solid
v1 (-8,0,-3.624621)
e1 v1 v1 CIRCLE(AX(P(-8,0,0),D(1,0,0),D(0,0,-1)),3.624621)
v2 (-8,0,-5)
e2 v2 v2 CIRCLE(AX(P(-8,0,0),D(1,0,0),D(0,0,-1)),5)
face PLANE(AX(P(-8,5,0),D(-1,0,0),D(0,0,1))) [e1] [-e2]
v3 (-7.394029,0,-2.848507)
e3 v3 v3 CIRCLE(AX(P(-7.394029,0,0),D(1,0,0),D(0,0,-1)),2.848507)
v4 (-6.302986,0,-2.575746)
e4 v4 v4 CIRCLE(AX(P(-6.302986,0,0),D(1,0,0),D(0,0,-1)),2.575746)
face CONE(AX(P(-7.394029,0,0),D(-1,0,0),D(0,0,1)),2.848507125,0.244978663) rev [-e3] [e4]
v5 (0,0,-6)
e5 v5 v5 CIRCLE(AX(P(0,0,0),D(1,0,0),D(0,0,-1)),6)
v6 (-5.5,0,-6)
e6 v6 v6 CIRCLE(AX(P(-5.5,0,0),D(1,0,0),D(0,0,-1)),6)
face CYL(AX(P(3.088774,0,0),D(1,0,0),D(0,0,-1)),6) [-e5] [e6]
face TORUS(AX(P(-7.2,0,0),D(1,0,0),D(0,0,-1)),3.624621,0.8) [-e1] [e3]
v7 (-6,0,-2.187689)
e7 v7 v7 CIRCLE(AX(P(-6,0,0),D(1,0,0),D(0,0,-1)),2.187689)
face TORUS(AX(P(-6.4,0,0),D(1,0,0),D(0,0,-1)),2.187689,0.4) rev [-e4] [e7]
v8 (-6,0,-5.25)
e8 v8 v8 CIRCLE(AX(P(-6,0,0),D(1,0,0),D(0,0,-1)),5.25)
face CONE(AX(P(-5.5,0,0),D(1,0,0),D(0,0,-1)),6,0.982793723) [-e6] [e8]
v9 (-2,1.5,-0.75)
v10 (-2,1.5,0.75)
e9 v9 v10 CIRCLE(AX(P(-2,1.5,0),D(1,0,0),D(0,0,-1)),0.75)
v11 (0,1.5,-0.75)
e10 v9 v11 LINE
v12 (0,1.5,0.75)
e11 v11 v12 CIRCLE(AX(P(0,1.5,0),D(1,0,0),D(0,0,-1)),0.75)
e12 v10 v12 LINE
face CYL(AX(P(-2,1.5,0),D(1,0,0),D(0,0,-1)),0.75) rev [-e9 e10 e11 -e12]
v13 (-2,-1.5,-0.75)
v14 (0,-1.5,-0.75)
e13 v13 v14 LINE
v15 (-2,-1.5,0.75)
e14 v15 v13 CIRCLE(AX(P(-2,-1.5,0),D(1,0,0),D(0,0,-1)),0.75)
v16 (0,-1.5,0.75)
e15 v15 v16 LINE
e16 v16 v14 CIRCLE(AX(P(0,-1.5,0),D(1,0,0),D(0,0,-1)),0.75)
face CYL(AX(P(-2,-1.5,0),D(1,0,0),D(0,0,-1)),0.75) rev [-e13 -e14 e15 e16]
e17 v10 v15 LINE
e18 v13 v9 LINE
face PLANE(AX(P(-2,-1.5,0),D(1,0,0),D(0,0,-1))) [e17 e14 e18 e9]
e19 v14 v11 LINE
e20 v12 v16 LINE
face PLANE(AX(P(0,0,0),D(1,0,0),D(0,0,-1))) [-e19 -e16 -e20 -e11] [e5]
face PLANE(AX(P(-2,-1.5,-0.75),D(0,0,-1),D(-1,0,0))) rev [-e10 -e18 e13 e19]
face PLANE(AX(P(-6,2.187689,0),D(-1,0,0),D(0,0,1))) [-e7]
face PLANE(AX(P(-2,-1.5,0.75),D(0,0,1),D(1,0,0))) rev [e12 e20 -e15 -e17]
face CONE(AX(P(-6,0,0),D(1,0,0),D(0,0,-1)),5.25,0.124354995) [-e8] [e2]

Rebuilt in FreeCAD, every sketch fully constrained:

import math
import FreeCAD as App
import Part
import Sketcher
Q = App.Units.Quantity

doc = App.newDocument("Part")
params = doc.addObject("Spreadsheet::Sheet", "Params")
for row, (alias, value) in enumerate([
    ("sketch1_radius", "0.8 mm"),
    ("sketch1_radius2", "0.4 mm"),
    ("sketch1_width", "6 mm"),
    ("sketch1_width2", "5.5 mm"),
    ("revolution_angle", "360 deg"),
    ("sketch2_width", "3 mm"),
    ("sketch2_radius", "0.75 mm"),
    ("pocket1_length", "2 mm"),
], start=1):
    params.set(f"A{row}", alias)
    params.set(f"B{row}", "=" + value)
    params.setAlias(f"B{row}", alias)

body = doc.addObject("PartDesign::Body", "Body")

# Sketch on XY plane
sketch1 = doc.addObject("Sketcher::SketchObject", "Sketch")
body.addObject(sketch1)
sketch1.AttachmentSupport = (doc.XY_Plane, [""])
sketch1.MapMode = "FlatFace"
sketch1.addGeometry(Part.LineSegment(App.Vector(0, 0, 0), App.Vector(0, 6, 0)), False)
sketch1.addGeometry(Part.LineSegment(App.Vector(0, 6, 0), App.Vector(-5.5, 6, 0)), False)
sketch1.addGeometry(Part.LineSegment(App.Vector(-5.5, 6, 0), App.Vector(-6, 5.25, 0)), False)
sketch1.addGeometry(Part.LineSegment(App.Vector(-6, 5.25, 0), App.Vector(-8, 5, 0)), False)
sketch1.addGeometry(Part.LineSegment(App.Vector(-8, 5, 0), App.Vector(-8, 3.62, 0)), False)
sketch1.addGeometry(Part.ArcOfCircle(Part.Circle(App.Vector(-7.2, 3.62, 0), App.Vector(0, 0, 1), 0.8), math.radians(-180), math.radians(-104)), False)
sketch1.addGeometry(Part.LineSegment(App.Vector(-7.39, 2.85, 0), App.Vector(-6.3, 2.58, 0)), False)
sketch1.addGeometry(Part.ArcOfCircle(Part.Circle(App.Vector(-6.4, 2.19, 0), App.Vector(0, 0, 1), 0.4), math.radians(0), math.radians(76)), False)
sketch1.addGeometry(Part.LineSegment(App.Vector(-6, 2.19, 0), App.Vector(-6, 0, 0)), False)
sketch1.addGeometry(Part.LineSegment(App.Vector(-6, 0, 0), App.Vector(0, 0, 0)), False)
sketch1.addConstraint(Sketcher.Constraint("Coincident", 0, 2, 1, 1))
sketch1.addConstraint(Sketcher.Constraint("Coincident", 1, 2, 2, 1))
sketch1.addConstraint(Sketcher.Constraint("Coincident", 2, 2, 3, 1))
sketch1.addConstraint(Sketcher.Constraint("Coincident", 3, 2, 4, 1))
sketch1.addConstraint(Sketcher.Constraint("Tangent", 4, 2, 5, 1))
sketch1.addConstraint(Sketcher.Constraint("Tangent", 5, 2, 6, 1))
sketch1.addConstraint(Sketcher.Constraint("Tangent", 6, 2, 7, 2))
sketch1.addConstraint(Sketcher.Constraint("Tangent", 7, 1, 8, 1))
sketch1.addConstraint(Sketcher.Constraint("Coincident", 8, 2, 9, 1))
sketch1.addConstraint(Sketcher.Constraint("Coincident", 9, 2, 0, 1))
sketch1.addConstraint(Sketcher.Constraint("Vertical", 0))
sketch1.addConstraint(Sketcher.Constraint("Horizontal", 1))
sketch1.addConstraint(Sketcher.Constraint("Vertical", 4))
sketch1.addConstraint(Sketcher.Constraint("Vertical", 8))
sketch1.addConstraint(Sketcher.Constraint("Horizontal", 9))
sketch1.addConstraint(Sketcher.Constraint("Coincident", 9, 2, -1, 1))
sketch1.addConstraint(Sketcher.Constraint("Vertical", 2, 2, 7, 1))
sketch1.addConstraint(Sketcher.Constraint("Equal", 9, 0))
sketch1.addConstraint(Sketcher.Constraint("Radius", 5, Q("0.8 mm")))
sketch1.addConstraint(Sketcher.Constraint("Radius", 7, Q("0.4 mm")))
sketch1.addConstraint(Sketcher.Constraint("DistanceX", 9, 1, 9, 2, Q("6 mm")))
sketch1.addConstraint(Sketcher.Constraint("DistanceX", 1, 2, 1, 1, Q("5.5 mm")))
sketch1.addConstraint(Sketcher.Constraint("DistanceX", 3, 2, -1, 1, Q("8 mm")))
sketch1.addConstraint(Sketcher.Constraint("DistanceY", -1, 1, 3, 2, Q("5 mm")))
sketch1.addConstraint(Sketcher.Constraint("DistanceY", -1, 1, 2, 2, Q("5.25 mm")))
sketch1.addConstraint(Sketcher.Constraint("DistanceY", 4, 2, 4, 1, Q("1.375379 mm")))
sketch1.addConstraint(Sketcher.Constraint("DistanceY", 8, 2, 8, 1, Q("2.187689 mm")))
sketch1.setExpression("Constraints[18]", "Params.sketch1_radius")
sketch1.setExpression("Constraints[19]", "Params.sketch1_radius2")
sketch1.setExpression("Constraints[20]", "Params.sketch1_width")
sketch1.setExpression("Constraints[21]", "Params.sketch1_width2")
revolution = doc.addObject("PartDesign::Revolution", "Revolution")
body.addObject(revolution)
revolution.Profile = sketch1
revolution.ReferenceAxis = (sketch1, ["H_Axis"])
revolution.setExpression("Angle", "Params.revolution_angle")

# Sketch on YZ plane
sketch2 = doc.addObject("Sketcher::SketchObject", "Sketch001")
body.addObject(sketch2)
sketch2.AttachmentSupport = (doc.YZ_Plane, [""])
sketch2.MapMode = "FlatFace"
sketch2.addGeometry(Part.LineSegment(App.Vector(1.5, 0.8, 0), App.Vector(-1.5, 0.8, 0)), False)
sketch2.addGeometry(Part.ArcOfCircle(Part.Circle(App.Vector(-1.5, 0, 0), App.Vector(0, 0, 1), 0.8), math.radians(90), math.radians(270)), False)
sketch2.addGeometry(Part.LineSegment(App.Vector(-1.5, -0.8, 0), App.Vector(1.5, -0.8, 0)), False)
sketch2.addGeometry(Part.ArcOfCircle(Part.Circle(App.Vector(1.5, 0, 0), App.Vector(0, 0, 1), 0.8), math.radians(-90), math.radians(90)), False)
sketch2.addConstraint(Sketcher.Constraint("Tangent", 0, 2, 1, 1))
sketch2.addConstraint(Sketcher.Constraint("Tangent", 1, 2, 2, 1))
sketch2.addConstraint(Sketcher.Constraint("Tangent", 2, 2, 3, 1))
sketch2.addConstraint(Sketcher.Constraint("Tangent", 3, 2, 0, 1))
sketch2.addConstraint(Sketcher.Constraint("Horizontal", 0))
sketch2.addConstraint(Sketcher.Constraint("Horizontal", 2))
sketch2.addConstraint(Sketcher.Constraint("Symmetric", 1, 3, 3, 3, -1, 1))
sketch2.addConstraint(Sketcher.Constraint("DistanceX", 0, 2, 0, 1, Q("3 mm")))
sketch2.addConstraint(Sketcher.Constraint("Radius", 1, Q("0.75 mm")))
sketch2.setExpression("Constraints[7]", "Params.sketch2_width")
sketch2.setExpression("Constraints[8]", "Params.sketch2_radius")
pocket1 = doc.addObject("PartDesign::Pocket", "Pocket")
body.addObject(pocket1)
pocket1.Profile = sketch2
pocket1.setExpression("Length", "Params.pocket1_length")

doc.recompute()
